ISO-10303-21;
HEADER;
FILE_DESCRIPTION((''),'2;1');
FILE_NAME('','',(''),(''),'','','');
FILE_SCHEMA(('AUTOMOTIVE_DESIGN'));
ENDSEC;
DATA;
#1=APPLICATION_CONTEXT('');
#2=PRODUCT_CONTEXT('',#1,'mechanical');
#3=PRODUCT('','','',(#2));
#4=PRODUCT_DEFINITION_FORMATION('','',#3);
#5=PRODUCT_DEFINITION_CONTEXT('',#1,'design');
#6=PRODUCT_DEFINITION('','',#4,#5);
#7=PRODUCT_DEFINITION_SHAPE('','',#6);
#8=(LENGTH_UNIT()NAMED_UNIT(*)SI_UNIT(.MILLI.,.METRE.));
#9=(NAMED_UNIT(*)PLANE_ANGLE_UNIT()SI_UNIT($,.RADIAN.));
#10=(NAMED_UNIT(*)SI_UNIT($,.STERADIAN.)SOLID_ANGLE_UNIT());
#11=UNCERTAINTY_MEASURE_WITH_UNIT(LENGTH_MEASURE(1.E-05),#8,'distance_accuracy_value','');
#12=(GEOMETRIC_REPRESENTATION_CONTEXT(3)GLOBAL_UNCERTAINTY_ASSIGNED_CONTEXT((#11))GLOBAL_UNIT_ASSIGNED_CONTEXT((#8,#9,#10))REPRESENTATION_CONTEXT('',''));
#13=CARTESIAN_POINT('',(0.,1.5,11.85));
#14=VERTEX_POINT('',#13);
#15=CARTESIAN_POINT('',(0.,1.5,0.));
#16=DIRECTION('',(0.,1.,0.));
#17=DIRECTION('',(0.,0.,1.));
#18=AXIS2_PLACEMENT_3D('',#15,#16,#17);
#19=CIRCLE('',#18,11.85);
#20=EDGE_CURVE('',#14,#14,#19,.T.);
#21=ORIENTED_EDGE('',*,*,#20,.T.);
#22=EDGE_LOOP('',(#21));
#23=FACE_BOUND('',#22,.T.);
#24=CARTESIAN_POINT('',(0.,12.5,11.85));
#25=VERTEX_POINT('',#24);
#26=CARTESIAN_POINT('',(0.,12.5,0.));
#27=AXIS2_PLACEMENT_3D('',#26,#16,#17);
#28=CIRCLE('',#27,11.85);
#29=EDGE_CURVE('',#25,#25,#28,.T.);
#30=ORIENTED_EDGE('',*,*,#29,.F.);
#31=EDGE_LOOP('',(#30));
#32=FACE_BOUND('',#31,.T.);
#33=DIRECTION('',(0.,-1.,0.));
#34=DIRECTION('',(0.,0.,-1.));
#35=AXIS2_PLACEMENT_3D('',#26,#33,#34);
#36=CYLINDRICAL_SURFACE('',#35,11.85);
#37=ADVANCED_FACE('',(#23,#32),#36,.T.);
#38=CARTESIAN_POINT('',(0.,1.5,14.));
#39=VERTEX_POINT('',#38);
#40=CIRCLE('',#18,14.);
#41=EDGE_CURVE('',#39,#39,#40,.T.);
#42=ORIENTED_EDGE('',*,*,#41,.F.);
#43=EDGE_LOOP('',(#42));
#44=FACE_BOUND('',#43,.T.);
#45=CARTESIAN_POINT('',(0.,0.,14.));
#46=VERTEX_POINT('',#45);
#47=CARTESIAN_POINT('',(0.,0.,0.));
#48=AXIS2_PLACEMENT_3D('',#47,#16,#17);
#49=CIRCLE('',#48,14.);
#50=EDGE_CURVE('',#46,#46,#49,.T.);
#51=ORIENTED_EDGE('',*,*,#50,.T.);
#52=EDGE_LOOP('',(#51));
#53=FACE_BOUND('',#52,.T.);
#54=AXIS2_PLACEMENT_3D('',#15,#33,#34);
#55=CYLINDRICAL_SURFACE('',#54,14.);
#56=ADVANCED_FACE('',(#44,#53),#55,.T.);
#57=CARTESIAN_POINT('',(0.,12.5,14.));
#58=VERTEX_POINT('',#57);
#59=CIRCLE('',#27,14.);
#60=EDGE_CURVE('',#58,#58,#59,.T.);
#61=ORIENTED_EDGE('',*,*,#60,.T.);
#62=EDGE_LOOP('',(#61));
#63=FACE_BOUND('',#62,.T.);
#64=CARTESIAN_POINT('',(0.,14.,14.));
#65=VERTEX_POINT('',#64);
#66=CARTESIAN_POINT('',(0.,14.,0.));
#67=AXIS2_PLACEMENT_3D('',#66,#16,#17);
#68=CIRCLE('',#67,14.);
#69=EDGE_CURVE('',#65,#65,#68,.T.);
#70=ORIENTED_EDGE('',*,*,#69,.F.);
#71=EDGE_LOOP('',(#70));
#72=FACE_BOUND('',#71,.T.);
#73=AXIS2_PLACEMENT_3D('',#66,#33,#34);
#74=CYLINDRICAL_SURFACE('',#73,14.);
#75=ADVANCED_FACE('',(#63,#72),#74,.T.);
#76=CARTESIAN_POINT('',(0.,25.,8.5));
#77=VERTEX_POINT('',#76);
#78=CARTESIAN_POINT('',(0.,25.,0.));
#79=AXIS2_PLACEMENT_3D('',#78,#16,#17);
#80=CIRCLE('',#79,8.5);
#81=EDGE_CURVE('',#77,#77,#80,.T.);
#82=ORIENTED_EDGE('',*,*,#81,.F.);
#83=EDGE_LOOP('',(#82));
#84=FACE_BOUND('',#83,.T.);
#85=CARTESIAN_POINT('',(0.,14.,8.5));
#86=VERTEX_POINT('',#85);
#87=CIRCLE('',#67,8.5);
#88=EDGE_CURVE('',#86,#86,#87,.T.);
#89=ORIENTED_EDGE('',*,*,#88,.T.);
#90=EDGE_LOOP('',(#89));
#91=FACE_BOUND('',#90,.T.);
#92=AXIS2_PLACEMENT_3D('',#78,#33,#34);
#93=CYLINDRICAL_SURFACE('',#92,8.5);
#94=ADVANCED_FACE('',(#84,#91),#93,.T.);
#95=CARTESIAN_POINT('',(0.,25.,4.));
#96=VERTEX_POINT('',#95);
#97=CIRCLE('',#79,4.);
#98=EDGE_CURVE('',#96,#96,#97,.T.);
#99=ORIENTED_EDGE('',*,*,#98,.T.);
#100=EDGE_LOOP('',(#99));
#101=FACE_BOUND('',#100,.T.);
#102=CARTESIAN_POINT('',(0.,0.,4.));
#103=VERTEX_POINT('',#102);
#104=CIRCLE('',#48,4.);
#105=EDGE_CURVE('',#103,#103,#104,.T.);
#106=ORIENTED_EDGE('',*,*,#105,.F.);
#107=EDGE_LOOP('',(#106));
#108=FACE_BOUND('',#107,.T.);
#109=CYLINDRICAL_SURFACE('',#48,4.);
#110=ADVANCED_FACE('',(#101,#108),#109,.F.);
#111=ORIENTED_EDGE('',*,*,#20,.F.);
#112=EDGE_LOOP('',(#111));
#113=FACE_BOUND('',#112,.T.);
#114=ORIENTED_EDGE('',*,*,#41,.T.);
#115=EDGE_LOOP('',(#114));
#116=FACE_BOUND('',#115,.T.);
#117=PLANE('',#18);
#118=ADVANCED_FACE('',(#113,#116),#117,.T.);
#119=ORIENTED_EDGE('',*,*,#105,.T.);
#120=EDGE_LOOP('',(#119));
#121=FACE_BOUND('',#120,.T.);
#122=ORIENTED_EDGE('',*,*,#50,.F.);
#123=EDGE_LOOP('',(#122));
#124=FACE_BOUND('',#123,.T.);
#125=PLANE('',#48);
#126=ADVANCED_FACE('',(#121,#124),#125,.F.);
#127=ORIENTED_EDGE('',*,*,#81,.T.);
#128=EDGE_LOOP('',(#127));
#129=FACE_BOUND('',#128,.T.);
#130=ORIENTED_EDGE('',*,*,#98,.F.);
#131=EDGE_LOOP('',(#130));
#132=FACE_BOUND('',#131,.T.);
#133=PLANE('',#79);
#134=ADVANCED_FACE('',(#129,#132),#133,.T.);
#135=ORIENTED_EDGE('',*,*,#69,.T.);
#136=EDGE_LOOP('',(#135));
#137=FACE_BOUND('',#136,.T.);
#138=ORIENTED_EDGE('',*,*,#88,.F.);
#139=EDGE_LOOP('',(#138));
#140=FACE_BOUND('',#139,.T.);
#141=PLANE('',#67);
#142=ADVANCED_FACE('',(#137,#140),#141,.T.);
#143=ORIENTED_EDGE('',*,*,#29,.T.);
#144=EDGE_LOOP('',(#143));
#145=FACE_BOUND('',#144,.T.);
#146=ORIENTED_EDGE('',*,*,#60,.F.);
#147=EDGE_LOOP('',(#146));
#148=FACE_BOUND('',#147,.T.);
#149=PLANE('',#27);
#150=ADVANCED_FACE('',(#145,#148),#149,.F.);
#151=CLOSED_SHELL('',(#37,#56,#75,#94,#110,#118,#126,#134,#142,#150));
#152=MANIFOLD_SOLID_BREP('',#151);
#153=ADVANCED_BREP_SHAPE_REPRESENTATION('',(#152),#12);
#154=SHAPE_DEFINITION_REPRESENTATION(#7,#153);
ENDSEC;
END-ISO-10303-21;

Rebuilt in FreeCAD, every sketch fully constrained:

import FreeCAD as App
import Part
import Sketcher

V = App.Vector
Q = App.Units.Quantity

doc = App.newDocument("Part")
body = doc.addObject("PartDesign::Body", "Body")

sketch1 = body.newObject("Sketcher::SketchObject", "Sketch")
sketch1.AttachmentSupport = (doc.getObject("XZ_Plane"), [""])
sketch1.MapMode = "FlatFace"
sketch1.addGeometry(Part.Circle(V(0, 0, 0), V(0, 0, 1), 14), False)
sketch1.addConstraint([
    Sketcher.Constraint("Coincident", 0, 3, -1, 1),
    Sketcher.Constraint("Diameter", 0, Q("28 mm")),
])
pad1 = body.newObject("PartDesign::Pad", "Pad")
pad1.Profile = sketch1
pad1.Length = 1.5
pad1.Reversed = True

sketch2 = body.newObject("Sketcher::SketchObject", "Sketch001")
sketch2.AttachmentSupport = (doc.getObject("XZ_Plane"), [""])
sketch2.MapMode = "FlatFace"
sketch2.AttachmentOffset = App.Placement(V(0, 0, -1.5), App.Rotation())
sketch2.addGeometry(Part.Circle(V(0, 0, 0), V(0, 0, 1), 12), False)
sketch2.addConstraint([
    Sketcher.Constraint("Coincident", 0, 3, -1, 1),
    Sketcher.Constraint("Diameter", 0, Q("23.7 mm")),
])
pad2 = body.newObject("PartDesign::Pad", "Pad001")
pad2.Profile = sketch2
pad2.Length = 11
pad2.Reversed = True

sketch3 = body.newObject("Sketcher::SketchObject", "Sketch002")
sketch3.AttachmentSupport = (doc.getObject("XZ_Plane"), [""])
sketch3.MapMode = "FlatFace"
sketch3.AttachmentOffset = App.Placement(V(0, 0, -12.5), App.Rotation())
sketch3.addGeometry(Part.Circle(V(0, 0, 0), V(0, 0, 1), 14), False)
sketch3.addConstraint([
    Sketcher.Constraint("Coincident", 0, 3, -1, 1),
    Sketcher.Constraint("Diameter", 0, Q("28 mm")),
])
pad3 = body.newObject("PartDesign::Pad", "Pad002")
pad3.Profile = sketch3
pad3.Length = 1.5
pad3.Reversed = True

sketch4 = body.newObject("Sketcher::SketchObject", "Sketch003")
sketch4.AttachmentSupport = (doc.getObject("XZ_Plane"), [""])
sketch4.MapMode = "FlatFace"
sketch4.AttachmentOffset = App.Placement(V(0, 0, -14), App.Rotation())
sketch4.addGeometry(Part.Circle(V(0, 0, 0), V(0, 0, 1), 8), False)
sketch4.addConstraint([
    Sketcher.Constraint("Coincident", 0, 3, -1, 1),
    Sketcher.Constraint("Diameter", 0, Q("17 mm")),
])
pad4 = body.newObject("PartDesign::Pad", "Pad003")
pad4.Profile = sketch4
pad4.Length = 11
pad4.Reversed = True

sketch5 = body.newObject("Sketcher::SketchObject", "Sketch004")
sketch5.AttachmentSupport = (doc.getObject("XZ_Plane"), [""])
sketch5.MapMode = "FlatFace"
sketch5.AttachmentOffset = App.Placement(V(0, 0, -25), App.Rotation())
sketch5.addGeometry(Part.Circle(V(0, 0, 0), V(0, 0, 1), 4), False)
sketch5.addConstraint([
    Sketcher.Constraint("Coincident", 0, 3, -1, 1),
    Sketcher.Constraint("Diameter", 0, Q("8 mm")),
])
pocket1 = body.newObject("PartDesign::Pocket", "Pocket")
pocket1.Profile = sketch5
pocket1.Type = "ThroughAll"
pocket1.Reversed = True

doc.recompute()
